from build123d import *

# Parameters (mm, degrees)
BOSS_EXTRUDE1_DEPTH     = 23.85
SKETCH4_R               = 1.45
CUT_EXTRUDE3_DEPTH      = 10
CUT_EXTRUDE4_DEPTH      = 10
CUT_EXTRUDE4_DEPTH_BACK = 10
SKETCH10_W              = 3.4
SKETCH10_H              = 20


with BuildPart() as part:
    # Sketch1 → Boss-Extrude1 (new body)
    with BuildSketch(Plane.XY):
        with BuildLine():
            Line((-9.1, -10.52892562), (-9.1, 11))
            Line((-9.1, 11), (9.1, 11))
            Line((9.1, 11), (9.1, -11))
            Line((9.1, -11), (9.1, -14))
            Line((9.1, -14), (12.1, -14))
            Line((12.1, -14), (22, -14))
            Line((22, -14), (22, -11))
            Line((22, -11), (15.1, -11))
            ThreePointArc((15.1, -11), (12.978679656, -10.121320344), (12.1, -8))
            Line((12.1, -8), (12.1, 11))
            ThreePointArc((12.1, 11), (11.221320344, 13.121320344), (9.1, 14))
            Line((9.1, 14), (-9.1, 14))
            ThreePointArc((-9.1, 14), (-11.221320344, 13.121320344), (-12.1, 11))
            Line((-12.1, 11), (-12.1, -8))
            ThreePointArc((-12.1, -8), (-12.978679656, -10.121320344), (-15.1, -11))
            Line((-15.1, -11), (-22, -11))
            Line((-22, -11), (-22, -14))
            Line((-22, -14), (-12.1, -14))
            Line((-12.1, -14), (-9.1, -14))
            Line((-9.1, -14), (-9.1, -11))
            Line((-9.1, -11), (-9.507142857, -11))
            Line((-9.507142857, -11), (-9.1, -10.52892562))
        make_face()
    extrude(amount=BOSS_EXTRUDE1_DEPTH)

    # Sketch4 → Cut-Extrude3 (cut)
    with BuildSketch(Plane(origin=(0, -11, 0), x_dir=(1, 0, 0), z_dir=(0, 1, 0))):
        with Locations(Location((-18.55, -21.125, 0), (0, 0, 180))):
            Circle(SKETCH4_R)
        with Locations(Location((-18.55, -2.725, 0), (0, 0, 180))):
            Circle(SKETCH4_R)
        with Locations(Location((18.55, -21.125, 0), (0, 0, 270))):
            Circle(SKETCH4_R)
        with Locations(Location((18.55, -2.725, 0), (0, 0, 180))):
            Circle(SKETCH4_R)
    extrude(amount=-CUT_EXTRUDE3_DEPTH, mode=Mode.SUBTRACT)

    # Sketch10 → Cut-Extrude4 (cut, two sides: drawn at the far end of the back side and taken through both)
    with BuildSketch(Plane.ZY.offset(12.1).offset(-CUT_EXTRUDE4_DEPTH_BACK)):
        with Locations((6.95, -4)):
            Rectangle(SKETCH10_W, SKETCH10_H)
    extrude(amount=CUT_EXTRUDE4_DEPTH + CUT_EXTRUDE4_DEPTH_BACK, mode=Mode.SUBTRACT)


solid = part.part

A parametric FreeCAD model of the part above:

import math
import FreeCAD as App
import Part
import Sketcher
from FreeCAD import Vector


def add_polygon(sketch, points):
    """Adds a closed chain of lines whose ends are joined by coincident constraints."""
    first, n = sketch.GeometryCount, len(points)
    for a, b in zip(points, points[1:] + points[:1]):
        sketch.addGeometry(Part.LineSegment(App.Vector(*a, 0), App.Vector(*b, 0)), False)
    for i in range(n):
        sketch.addConstraint(Sketcher.Constraint("Coincident", first + i, 2, first + (i + 1) % n, 1))

doc = App.newDocument("Part")
params = doc.addObject("Spreadsheet::Sheet", "Params")
for row, (alias, value) in enumerate([
    ("sketch1_radius", "3 mm"),
    ("sketch1_height", "25 mm"),
    ("sketch1_height2", "3 mm"),
    ("sketch1_width", "18.2 mm"),
    ("sketch1_width2", "12.9 mm"),
    ("pad1_length", "23.85 mm"),
    ("sketch2_diameter", "2.9 mm"),
    ("pocket1_length", "10 mm"),
    ("sketch3_width", "20 mm"),
    ("sketch3_height", "3.4 mm"),
    ("pocket2_length", "10 mm"),
    ("pocket2_length2", "10 mm"),
], start=1):
    params.set(f"A{row}", alias)
    params.set(f"B{row}", "=" + value)
    params.setAlias(f"B{row}", alias)

body = doc.addObject("PartDesign::Body", "Body")

# Sketch on XY plane
sketch1 = doc.addObject("Sketcher::SketchObject", "Sketch")
body.addObject(sketch1)
sketch1.AttachmentSupport = (doc.XY_Plane, [""])
sketch1.MapMode = "FlatFace"
sketch1.addGeometry([
    Part.LineSegment(Vector(-9.1, -10.53, 0), Vector(-9.1, 11, 0)),  # 0
    Part.LineSegment(Vector(-9.1, 11, 0), Vector(9.1, 11, 0)),  # 1
    Part.LineSegment(Vector(9.1, 11, 0), Vector(9.1, -14, 0)),  # 2
    Part.LineSegment(Vector(9.1, -14, 0), Vector(22, -14, 0)),  # 3
    Part.LineSegment(Vector(22, -14, 0), Vector(22, -11, 0)),  # 4
    Part.LineSegment(Vector(22, -11, 0), Vector(15.1, -11, 0)),  # 5
    Part.ArcOfCircle(Part.Circle(Vector(15.1, -8, 0), Vector(0, 0, 1), 3), math.radians(180), math.radians(270)),  # 6
    Part.LineSegment(Vector(12.1, -8, 0), Vector(12.1, 11, 0)),  # 7
    Part.ArcOfCircle(Part.Circle(Vector(9.1, 11, 0), Vector(0, 0, 1), 3), math.radians(0), math.radians(90)),  # 8
    Part.LineSegment(Vector(9.1, 14, 0), Vector(-9.1, 14, 0)),  # 9
    Part.ArcOfCircle(Part.Circle(Vector(-9.1, 11, 0), Vector(0, 0, 1), 3), math.radians(90), math.radians(180)),  # 10
    Part.LineSegment(Vector(-12.1, 11, 0), Vector(-12.1, -8, 0)),  # 11
    Part.ArcOfCircle(Part.Circle(Vector(-15.1, -8, 0), Vector(0, 0, 1), 3), math.radians(-90), math.radians(0)),  # 12
    Part.LineSegment(Vector(-15.1, -11, 0), Vector(-22, -11, 0)),  # 13
    Part.LineSegment(Vector(-22, -11, 0), Vector(-22, -14, 0)),  # 14
    Part.LineSegment(Vector(-22, -14, 0), Vector(-9.1, -14, 0)),  # 15
    Part.LineSegment(Vector(-9.1, -14, 0), Vector(-9.1, -11, 0)),  # 16
    Part.LineSegment(Vector(-9.1, -11, 0), Vector(-9.51, -11, 0)),  # 17
    Part.LineSegment(Vector(-9.51, -11, 0), Vector(-9.1, -10.53, 0)),  # 18
], False)
sketch1.addConstraint([
    Sketcher.Constraint("Coincident", 0, 2, 1, 1),
    Sketcher.Constraint("Coincident", 1, 2, 2, 1),
    Sketcher.Constraint("Coincident", 2, 2, 3, 1),
    Sketcher.Constraint("Coincident", 3, 2, 4, 1),
    Sketcher.Constraint("Coincident", 4, 2, 5, 1),
    Sketcher.Constraint("Tangent", 5, 2, 6, 2),
    Sketcher.Constraint("Tangent", 6, 1, 7, 1),
    Sketcher.Constraint("Tangent", 7, 2, 8, 1),
    Sketcher.Constraint("Tangent", 8, 2, 9, 1),
    Sketcher.Constraint("Tangent", 9, 2, 10, 1),
    Sketcher.Constraint("Tangent", 10, 2, 11, 1),
    Sketcher.Constraint("Tangent", 11, 2, 12, 2),
    Sketcher.Constraint("Tangent", 12, 1, 13, 1),
    Sketcher.Constraint("Coincident", 13, 2, 14, 1),
    Sketcher.Constraint("Coincident", 14, 2, 15, 1),
    Sketcher.Constraint("Coincident", 15, 2, 16, 1),
    Sketcher.Constraint("Coincident", 16, 2, 17, 1),
    Sketcher.Constraint("Coincident", 17, 2, 18, 1),
    Sketcher.Constraint("Coincident", 18, 2, 0, 1),
    Sketcher.Constraint("Vertical", 0),
    Sketcher.Constraint("Horizontal", 1),
    Sketcher.Constraint("Vertical", 2),
    Sketcher.Constraint("Horizontal", 3),
    Sketcher.Constraint("Vertical", 4),
    Sketcher.Constraint("Horizontal", 5),
    Sketcher.Constraint("Vertical", 7),
    Sketcher.Constraint("Horizontal", 9),
    Sketcher.Constraint("Vertical", 11),
    Sketcher.Constraint("Horizontal", 13),
    Sketcher.Constraint("Vertical", 14),
    Sketcher.Constraint("Horizontal", 15),
    Sketcher.Constraint("Vertical", 16),
    Sketcher.Constraint("Horizontal", 17),
    Sketcher.Constraint("Coincident", 0, 2, 10, 3),
    Sketcher.Constraint("Coincident", 1, 2, 8, 3),
    Sketcher.Constraint("Equal", 6, 8),
    Sketcher.Constraint("Equal", 10, 12),
    Sketcher.Constraint("Symmetric", 2, 2, 9, 2, -1, 1),
    Sketcher.Constraint("Symmetric", 8, 2, 15, 2, -1, 1),
    Sketcher.Constraint("Symmetric", 4, 2, 13, 2, -2),
    Sketcher.Constraint("Horizontal", 13, 2, 16, 2),
    Sketcher.Constraint("Radius", 6, 3.0),
    Sketcher.Constraint("DistanceY", 2, 2, 2, 1, 25.0),
    Sketcher.Constraint("DistanceY", 4, 1, 4, 2, 3.0),
    Sketcher.Constraint("DistanceX", 1, 1, 1, 2, 18.2),
    Sketcher.Constraint("DistanceX", 3, 1, 3, 2, 12.9),
    Sketcher.Constraint("DistanceX", 17, 2, 17, 1, 0.407143),
    Sketcher.Constraint("DistanceY", 0, 1, 0, 2, 21.528926),
])
sketch1.setExpression("Constraints[41]", "Params.sketch1_radius")
sketch1.setExpression("Constraints[42]", "Params.sketch1_height")
sketch1.setExpression("Constraints[43]", "Params.sketch1_height2")
sketch1.setExpression("Constraints[44]", "Params.sketch1_width")
sketch1.setExpression("Constraints[45]", "Params.sketch1_width2")
pad1 = doc.addObject("PartDesign::Pad", "Pad")
body.addObject(pad1)
pad1.Profile = sketch1
pad1.setExpression("Length", "Params.pad1_length")

# Sketch on XZ plane
sketch2 = doc.addObject("Sketcher::SketchObject", "Sketch001")
body.addObject(sketch2)
sketch2.AttachmentSupport = (doc.XZ_Plane, [""])
sketch2.MapMode = "FlatFace"
sketch2.AttachmentOffset = App.Placement(Vector(0, 0, 11), App.Rotation())
sketch2.addGeometry([
    Part.Circle(Vector(-18.6, 21.1, 0), Vector(0, 0, 1), 1.4),
    Part.Circle(Vector(-18.6, 2.7, 0), Vector(0, 0, 1), 1.4),
    Part.Circle(Vector(18.6, 21.1, 0), Vector(0, 0, 1), 1.4),
    Part.Circle(Vector(18.6, 2.7, 0), Vector(0, 0, 1), 1.4),
], False)
sketch2.addConstraint([
    Sketcher.Constraint("Equal", 0, 1),
    Sketcher.Constraint("Equal", 1, 2),
    Sketcher.Constraint("Equal", 2, 3),
    Sketcher.Constraint("Symmetric", 0, 3, 2, 3, -2),
    Sketcher.Constraint("Symmetric", 1, 3, 3, 3, -2),
    Sketcher.Constraint("Vertical", 0, 3, 1, 3),
    Sketcher.Constraint("Diameter", 0, 2.9),
    Sketcher.Constraint("DistanceY", 1, 3, 0, 3, 18.4),
    Sketcher.Constraint("DistanceX", 0, 3, 2, 3, 37.1),
    Sketcher.Constraint("DistanceY", -1, 1, 0, 3, 21.125),
])
sketch2.setExpression("Constraints[6]", "Params.sketch2_diameter")
pocket1 = doc.addObject("PartDesign::Pocket", "Pocket")
body.addObject(pocket1)
pocket1.Profile = sketch2
pocket1.setExpression("Length", "Params.pocket1_length")
pocket1.Reversed = True

# Sketch on YZ plane
sketch3 = doc.addObject("Sketcher::SketchObject", "Sketch002")
body.addObject(sketch3)
sketch3.AttachmentSupport = (doc.YZ_Plane, [""])
sketch3.MapMode = "FlatFace"
sketch3.AttachmentOffset = App.Placement(Vector(0, 0, -12.1), App.Rotation())
add_polygon(sketch3, [(6, 5.2), (-14, 5.2), (-14, 8.7), (6, 8.7)])  # lines 0-3
sketch3.addConstraint([
    Sketcher.Constraint("Horizontal", 0),
    Sketcher.Constraint("Vertical", 1),
    Sketcher.Constraint("Horizontal", 2),
    Sketcher.Constraint("Vertical", 3),
    Sketcher.Constraint("DistanceX", 0, 2, 0, 1, 20.0),
    Sketcher.Constraint("DistanceY", 1, 1, 1, 2, 3.4),
    Sketcher.Constraint("DistanceX", 0, 2, -1, 1, 14.0),
    Sketcher.Constraint("DistanceY", -1, 1, 0, 2, 5.25),
])
sketch3.setExpression("Constraints[8]", "Params.sketch3_width")
sketch3.setExpression("Constraints[9]", "Params.sketch3_height")
pocket2 = doc.addObject("PartDesign::Pocket", "Pocket001")
body.addObject(pocket2)
pocket2.Profile = sketch3
pocket2.Type = "TwoLengths"
pocket2.setExpression("Length", "Params.pocket2_length")
pocket2.setExpression("Length2", "Params.pocket2_length2")

doc.recompute()
